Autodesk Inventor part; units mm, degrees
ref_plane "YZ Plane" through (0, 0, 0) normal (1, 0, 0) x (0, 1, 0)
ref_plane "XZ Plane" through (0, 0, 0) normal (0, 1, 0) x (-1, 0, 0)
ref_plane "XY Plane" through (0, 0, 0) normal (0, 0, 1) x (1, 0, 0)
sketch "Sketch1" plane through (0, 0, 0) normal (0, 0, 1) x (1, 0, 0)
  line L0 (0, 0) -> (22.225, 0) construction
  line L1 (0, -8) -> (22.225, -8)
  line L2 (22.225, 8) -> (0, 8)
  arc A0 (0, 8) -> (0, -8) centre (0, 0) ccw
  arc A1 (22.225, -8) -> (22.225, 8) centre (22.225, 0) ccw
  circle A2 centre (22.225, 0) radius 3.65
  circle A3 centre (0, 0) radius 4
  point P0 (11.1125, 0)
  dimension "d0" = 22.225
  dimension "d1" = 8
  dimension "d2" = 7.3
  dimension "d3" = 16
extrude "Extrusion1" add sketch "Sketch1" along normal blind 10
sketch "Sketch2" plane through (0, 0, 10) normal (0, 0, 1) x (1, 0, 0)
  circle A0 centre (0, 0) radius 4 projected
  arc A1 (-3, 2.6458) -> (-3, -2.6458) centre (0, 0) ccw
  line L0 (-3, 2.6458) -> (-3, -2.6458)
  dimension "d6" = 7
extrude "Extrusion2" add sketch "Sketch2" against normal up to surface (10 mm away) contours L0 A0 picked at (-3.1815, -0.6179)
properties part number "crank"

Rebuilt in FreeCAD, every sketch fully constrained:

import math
import FreeCAD as App
import Part
import Sketcher

V = App.Vector

doc = App.newDocument("Part")
params = doc.addObject("Spreadsheet::Sheet", "Params")
for row, (alias, value) in enumerate([
    ("sketch1_diameter", "8 mm"),
    ("sketch1_radius", "8 mm"),
    ("sketch1_diameter2", "7.3 mm"),
    ("pad1_length", "10 mm"),
    ("sketch2_radius", "4 mm"),
    ("pad2_length", "10 mm"),
], start=1):
    params.set(f"A{row}", alias)
    params.set(f"B{row}", "=" + value)
    params.setAlias(f"B{row}", alias)

body = doc.addObject("PartDesign::Body", "Body")

sketch1 = body.newObject("Sketcher::SketchObject", "Sketch")
sketch1.AttachmentSupport = (doc.getObject("XY_Plane"), [""])
sketch1.MapMode = "FlatFace"
sketch1.addGeometry([
    Part.ArcOfCircle(Part.Circle(V(0, 0, 0), V(0, 0, 1), 8), math.radians(90), math.radians(270)),
    Part.LineSegment(V(0, -8, 0), V(22.225, -8, 0)),
    Part.ArcOfCircle(Part.Circle(V(22.225, 0, 0), V(0, 0, 1), 8), math.radians(-90), math.radians(90)),
    Part.LineSegment(V(22.225, 8, 0), V(0, 8, 0)),
    Part.Circle(V(0, 0, 0), V(0, 0, 1), 4),
    Part.Circle(V(22.225, 0, 0), V(0, 0, 1), 3.65),
], False)
sketch1.addConstraint([
    Sketcher.Constraint("Tangent", 0, 2, 1, 1),
    Sketcher.Constraint("Tangent", 1, 2, 2, 1),
    Sketcher.Constraint("Tangent", 2, 2, 3, 1),
    Sketcher.Constraint("Tangent", 3, 2, 0, 1),
    Sketcher.Constraint("Horizontal", 1),
    Sketcher.Constraint("Horizontal", 3),
    Sketcher.Constraint("Coincident", 0, 3, -1, 1),
    Sketcher.Constraint("Coincident", 4, 3, -1, 1),
    Sketcher.Constraint("Coincident", 5, 3, 2, 3),
    Sketcher.Constraint("Diameter", 4, 8.0),
    Sketcher.Constraint("Radius", 0, 8.0),
    Sketcher.Constraint("Diameter", 5, 7.3),
    Sketcher.Constraint("DistanceX", 1, 1, 1, 2, 22.225),
])
sketch1.setExpression("Constraints[9]", "Params.sketch1_diameter")
sketch1.setExpression("Constraints[10]", "Params.sketch1_radius")
sketch1.setExpression("Constraints[11]", "Params.sketch1_diameter2")
pad1 = body.newObject("PartDesign::Pad", "Pad")
pad1.Profile = sketch1
pad1.setExpression("Length", "Params.pad1_length")

sketch2 = body.newObject("Sketcher::SketchObject", "Sketch001")
sketch2.AttachmentSupport = (doc.getObject("XY_Plane"), [""])
sketch2.MapMode = "FlatFace"
sketch2.AttachmentOffset = App.Placement(V(0, 0, 10), App.Rotation())
sketch2.addGeometry([
    Part.LineSegment(V(-3, -2.6458, 0), V(-3, 2.6458, 0)),
    Part.ArcOfCircle(Part.Circle(V(0, 0, 0), V(0, 0, 1), 4), math.radians(138.589855), math.radians(221.410145)),
], False)
sketch2.addConstraint([
    Sketcher.Constraint("Coincident", 0, 1, 1, 2),
    Sketcher.Constraint("Coincident", 1, 1, 0, 2),
    Sketcher.Constraint("Vertical", 0),
    Sketcher.Constraint("Coincident", 1, 3, -1, 1),
    Sketcher.Constraint("Radius", 1, 4.0),
    Sketcher.Constraint("DistanceX", 0, 1, -1, 1, 3.0),
])
sketch2.setExpression("Constraints[4]", "Params.sketch2_radius")
pad2 = body.newObject("PartDesign::Pad", "Pad001")
pad2.Profile = sketch2
pad2.setExpression("Length", "Params.pad2_length")
pad2.Reversed = True

doc.recompute()
